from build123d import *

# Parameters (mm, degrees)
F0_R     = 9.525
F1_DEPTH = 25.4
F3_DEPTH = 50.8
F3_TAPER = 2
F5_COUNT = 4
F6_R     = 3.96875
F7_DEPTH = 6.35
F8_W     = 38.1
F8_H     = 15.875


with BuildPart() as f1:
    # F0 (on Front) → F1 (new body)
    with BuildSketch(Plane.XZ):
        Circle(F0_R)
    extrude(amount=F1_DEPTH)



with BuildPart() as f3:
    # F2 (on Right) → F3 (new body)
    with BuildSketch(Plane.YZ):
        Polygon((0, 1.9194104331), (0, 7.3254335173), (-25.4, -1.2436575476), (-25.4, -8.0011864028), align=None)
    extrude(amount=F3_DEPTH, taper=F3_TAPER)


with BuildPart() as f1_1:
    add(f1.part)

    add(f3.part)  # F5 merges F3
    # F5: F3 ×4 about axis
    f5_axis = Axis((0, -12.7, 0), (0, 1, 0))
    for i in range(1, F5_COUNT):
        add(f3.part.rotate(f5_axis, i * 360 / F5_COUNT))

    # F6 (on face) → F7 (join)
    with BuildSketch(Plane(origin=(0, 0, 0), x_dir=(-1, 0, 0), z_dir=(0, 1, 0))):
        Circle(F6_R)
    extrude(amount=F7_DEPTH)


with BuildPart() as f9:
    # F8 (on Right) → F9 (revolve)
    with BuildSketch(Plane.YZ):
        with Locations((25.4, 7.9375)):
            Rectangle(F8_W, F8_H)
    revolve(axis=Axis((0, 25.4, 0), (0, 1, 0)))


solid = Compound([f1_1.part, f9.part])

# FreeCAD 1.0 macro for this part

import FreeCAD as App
import Part
import Sketcher

V = App.Vector
Q = App.Units.Quantity


def add_polygon(sketch, points):
    """Adds a closed chain of lines whose ends are joined by coincident constraints."""
    first, n = sketch.GeometryCount, len(points)
    for a, b in zip(points, points[1:] + points[:1]):
        sketch.addGeometry(Part.LineSegment(App.Vector(*a, 0), App.Vector(*b, 0)), False)
    for i in range(n):
        sketch.addConstraint(Sketcher.Constraint("Coincident", first + i, 2, first + (i + 1) % n, 1))

doc = App.newDocument("Part")
body = doc.addObject("PartDesign::Body", "Body")

# Sketch on XZ plane
sketch1 = body.newObject("Sketcher::SketchObject", "Sketch")
sketch1.AttachmentSupport = (doc.getObject("XZ_Plane"), [""])
sketch1.MapMode = "FlatFace"
sketch1.addGeometry(Part.Circle(V(0, 0, 0), V(0, 0, 1), 9.525), False)
sketch1.addConstraint([
    Sketcher.Constraint("Coincident", 0, 3, -1, 1),
    Sketcher.Constraint("Diameter", 0, Q("0.75 in")),
])
pad1 = body.newObject("PartDesign::Pad", "Pad")
pad1.Profile = sketch1
pad1.Length = Q("1 in")
body2 = doc.addObject("PartDesign::Body", "Body001")

# Sketch on YZ plane
sketch2 = body2.newObject("Sketcher::SketchObject", "Sketch001")
sketch2.AttachmentSupport = (doc.getObject("YZ_Plane001"), [""])
sketch2.MapMode = "FlatFace"
add_polygon(sketch2, [(0, 1.91941), (0, 7.325434), (-25.4, -1.243658), (-25.4, -8.001186)])  # lines 0-3
sketch2.addConstraint([
    Sketcher.Constraint("Vertical", 0),
    Sketcher.Constraint("Vertical", 2),
    Sketcher.Constraint("PointOnObject", 0, 2, -2),
    Sketcher.Constraint("DistanceX", 1, 2, -1, 1, Q("1 in")),
    Sketcher.Constraint("DistanceY", 2, 2, 2, 1, 6.757529),
    Sketcher.Constraint("Distance", 3, 27.268631),
    Sketcher.Constraint("DistanceY", 0, 1, 0, 2, 5.406023),
    Sketcher.Constraint("DistanceY", -1, 1, 3, 2, 1.91941),
])
pad2 = body2.newObject("PartDesign::Pad", "Pad001")
pad2.Profile = sketch2
pad2.Length = Q("2 in")
pad2.TaperAngle = -2
doc.recompute()

body3 = doc.addObject("PartDesign::Body", "Body002")
body3.BaseFeature = body2
boolean = body.newObject("PartDesign::Boolean", "Boolean")
boolean.Type = "Fuse"
boolean.addObjects([body3])
doc.recompute()

body4 = doc.addObject("PartDesign::Body", "Body003")
body4.BaseFeature = body2
body4.Placement = App.Placement(V(0, 0, 0), App.Rotation(V(0, 1, 0), 90))
boolean2 = body.newObject("PartDesign::Boolean", "Boolean001")
boolean2.Type = "Fuse"
boolean2.addObjects([body4])
doc.recompute()

body5 = doc.addObject("PartDesign::Body", "Body004")
body5.BaseFeature = body2
body5.Placement = App.Placement(V(0, 0, 0), App.Rotation(V(0, 1, 0), 180))
boolean3 = body.newObject("PartDesign::Boolean", "Boolean002")
boolean3.Type = "Fuse"
boolean3.addObjects([body5])
doc.recompute()

body2.Placement = App.Placement(V(0, 0, 0), App.Rotation(V(0, 1, 0), 270))
boolean4 = body.newObject("PartDesign::Boolean", "Boolean003")
boolean4.Type = "Fuse"
boolean4.addObjects([body2])

# Sketch on XZ plane
sketch3 = body.newObject("Sketcher::SketchObject", "Sketch002")
sketch3.AttachmentSupport = (doc.getObject("XZ_Plane"), [""])
sketch3.MapMode = "FlatFace"
sketch3.addGeometry(Part.Circle(V(0, 0, 0), V(0, 0, 1), 3.96875), False)
sketch3.addConstraint([
    Sketcher.Constraint("Coincident", 0, 3, -1, 1),
    Sketcher.Constraint("Diameter", 0, Q("0.3125 in")),
])
pad3 = body.newObject("PartDesign::Pad", "Pad002")
pad3.Profile = sketch3
pad3.Length = Q("0.25 in")
pad3.Reversed = True
body6 = doc.addObject("PartDesign::Body", "Body005")

# Sketch on YZ plane
sketch4 = body6.newObject("Sketcher::SketchObject", "Sketch003")
sketch4.AttachmentSupport = (doc.getObject("YZ_Plane005"), [""])
sketch4.MapMode = "FlatFace"
add_polygon(sketch4, [(6.35, 15.875), (6.35, 0), (44.45, 0), (44.45, 15.875)])  # lines 0-3
sketch4.addConstraint([
    Sketcher.Constraint("Vertical", 0),
    Sketcher.Constraint("Horizontal", 1),
    Sketcher.Constraint("Vertical", 2),
    Sketcher.Constraint("Horizontal", 3),
    Sketcher.Constraint("PointOnObject", 0, 2, -1),
    Sketcher.Constraint("DistanceX", 1, 1, 1, 2, Q("1.5 in")),
    Sketcher.Constraint("DistanceY", 0, 2, 0, 1, Q("0.625 in")),
    Sketcher.Constraint("DistanceX", -1, 1, 0, 2, Q("0.25 in")),
])
revolution = body6.newObject("PartDesign::Revolution", "Revolution")
revolution.Profile = sketch4
revolution.ReferenceAxis = (sketch4, ["H_Axis"])
revolution.Angle = 360

doc.recompute()
